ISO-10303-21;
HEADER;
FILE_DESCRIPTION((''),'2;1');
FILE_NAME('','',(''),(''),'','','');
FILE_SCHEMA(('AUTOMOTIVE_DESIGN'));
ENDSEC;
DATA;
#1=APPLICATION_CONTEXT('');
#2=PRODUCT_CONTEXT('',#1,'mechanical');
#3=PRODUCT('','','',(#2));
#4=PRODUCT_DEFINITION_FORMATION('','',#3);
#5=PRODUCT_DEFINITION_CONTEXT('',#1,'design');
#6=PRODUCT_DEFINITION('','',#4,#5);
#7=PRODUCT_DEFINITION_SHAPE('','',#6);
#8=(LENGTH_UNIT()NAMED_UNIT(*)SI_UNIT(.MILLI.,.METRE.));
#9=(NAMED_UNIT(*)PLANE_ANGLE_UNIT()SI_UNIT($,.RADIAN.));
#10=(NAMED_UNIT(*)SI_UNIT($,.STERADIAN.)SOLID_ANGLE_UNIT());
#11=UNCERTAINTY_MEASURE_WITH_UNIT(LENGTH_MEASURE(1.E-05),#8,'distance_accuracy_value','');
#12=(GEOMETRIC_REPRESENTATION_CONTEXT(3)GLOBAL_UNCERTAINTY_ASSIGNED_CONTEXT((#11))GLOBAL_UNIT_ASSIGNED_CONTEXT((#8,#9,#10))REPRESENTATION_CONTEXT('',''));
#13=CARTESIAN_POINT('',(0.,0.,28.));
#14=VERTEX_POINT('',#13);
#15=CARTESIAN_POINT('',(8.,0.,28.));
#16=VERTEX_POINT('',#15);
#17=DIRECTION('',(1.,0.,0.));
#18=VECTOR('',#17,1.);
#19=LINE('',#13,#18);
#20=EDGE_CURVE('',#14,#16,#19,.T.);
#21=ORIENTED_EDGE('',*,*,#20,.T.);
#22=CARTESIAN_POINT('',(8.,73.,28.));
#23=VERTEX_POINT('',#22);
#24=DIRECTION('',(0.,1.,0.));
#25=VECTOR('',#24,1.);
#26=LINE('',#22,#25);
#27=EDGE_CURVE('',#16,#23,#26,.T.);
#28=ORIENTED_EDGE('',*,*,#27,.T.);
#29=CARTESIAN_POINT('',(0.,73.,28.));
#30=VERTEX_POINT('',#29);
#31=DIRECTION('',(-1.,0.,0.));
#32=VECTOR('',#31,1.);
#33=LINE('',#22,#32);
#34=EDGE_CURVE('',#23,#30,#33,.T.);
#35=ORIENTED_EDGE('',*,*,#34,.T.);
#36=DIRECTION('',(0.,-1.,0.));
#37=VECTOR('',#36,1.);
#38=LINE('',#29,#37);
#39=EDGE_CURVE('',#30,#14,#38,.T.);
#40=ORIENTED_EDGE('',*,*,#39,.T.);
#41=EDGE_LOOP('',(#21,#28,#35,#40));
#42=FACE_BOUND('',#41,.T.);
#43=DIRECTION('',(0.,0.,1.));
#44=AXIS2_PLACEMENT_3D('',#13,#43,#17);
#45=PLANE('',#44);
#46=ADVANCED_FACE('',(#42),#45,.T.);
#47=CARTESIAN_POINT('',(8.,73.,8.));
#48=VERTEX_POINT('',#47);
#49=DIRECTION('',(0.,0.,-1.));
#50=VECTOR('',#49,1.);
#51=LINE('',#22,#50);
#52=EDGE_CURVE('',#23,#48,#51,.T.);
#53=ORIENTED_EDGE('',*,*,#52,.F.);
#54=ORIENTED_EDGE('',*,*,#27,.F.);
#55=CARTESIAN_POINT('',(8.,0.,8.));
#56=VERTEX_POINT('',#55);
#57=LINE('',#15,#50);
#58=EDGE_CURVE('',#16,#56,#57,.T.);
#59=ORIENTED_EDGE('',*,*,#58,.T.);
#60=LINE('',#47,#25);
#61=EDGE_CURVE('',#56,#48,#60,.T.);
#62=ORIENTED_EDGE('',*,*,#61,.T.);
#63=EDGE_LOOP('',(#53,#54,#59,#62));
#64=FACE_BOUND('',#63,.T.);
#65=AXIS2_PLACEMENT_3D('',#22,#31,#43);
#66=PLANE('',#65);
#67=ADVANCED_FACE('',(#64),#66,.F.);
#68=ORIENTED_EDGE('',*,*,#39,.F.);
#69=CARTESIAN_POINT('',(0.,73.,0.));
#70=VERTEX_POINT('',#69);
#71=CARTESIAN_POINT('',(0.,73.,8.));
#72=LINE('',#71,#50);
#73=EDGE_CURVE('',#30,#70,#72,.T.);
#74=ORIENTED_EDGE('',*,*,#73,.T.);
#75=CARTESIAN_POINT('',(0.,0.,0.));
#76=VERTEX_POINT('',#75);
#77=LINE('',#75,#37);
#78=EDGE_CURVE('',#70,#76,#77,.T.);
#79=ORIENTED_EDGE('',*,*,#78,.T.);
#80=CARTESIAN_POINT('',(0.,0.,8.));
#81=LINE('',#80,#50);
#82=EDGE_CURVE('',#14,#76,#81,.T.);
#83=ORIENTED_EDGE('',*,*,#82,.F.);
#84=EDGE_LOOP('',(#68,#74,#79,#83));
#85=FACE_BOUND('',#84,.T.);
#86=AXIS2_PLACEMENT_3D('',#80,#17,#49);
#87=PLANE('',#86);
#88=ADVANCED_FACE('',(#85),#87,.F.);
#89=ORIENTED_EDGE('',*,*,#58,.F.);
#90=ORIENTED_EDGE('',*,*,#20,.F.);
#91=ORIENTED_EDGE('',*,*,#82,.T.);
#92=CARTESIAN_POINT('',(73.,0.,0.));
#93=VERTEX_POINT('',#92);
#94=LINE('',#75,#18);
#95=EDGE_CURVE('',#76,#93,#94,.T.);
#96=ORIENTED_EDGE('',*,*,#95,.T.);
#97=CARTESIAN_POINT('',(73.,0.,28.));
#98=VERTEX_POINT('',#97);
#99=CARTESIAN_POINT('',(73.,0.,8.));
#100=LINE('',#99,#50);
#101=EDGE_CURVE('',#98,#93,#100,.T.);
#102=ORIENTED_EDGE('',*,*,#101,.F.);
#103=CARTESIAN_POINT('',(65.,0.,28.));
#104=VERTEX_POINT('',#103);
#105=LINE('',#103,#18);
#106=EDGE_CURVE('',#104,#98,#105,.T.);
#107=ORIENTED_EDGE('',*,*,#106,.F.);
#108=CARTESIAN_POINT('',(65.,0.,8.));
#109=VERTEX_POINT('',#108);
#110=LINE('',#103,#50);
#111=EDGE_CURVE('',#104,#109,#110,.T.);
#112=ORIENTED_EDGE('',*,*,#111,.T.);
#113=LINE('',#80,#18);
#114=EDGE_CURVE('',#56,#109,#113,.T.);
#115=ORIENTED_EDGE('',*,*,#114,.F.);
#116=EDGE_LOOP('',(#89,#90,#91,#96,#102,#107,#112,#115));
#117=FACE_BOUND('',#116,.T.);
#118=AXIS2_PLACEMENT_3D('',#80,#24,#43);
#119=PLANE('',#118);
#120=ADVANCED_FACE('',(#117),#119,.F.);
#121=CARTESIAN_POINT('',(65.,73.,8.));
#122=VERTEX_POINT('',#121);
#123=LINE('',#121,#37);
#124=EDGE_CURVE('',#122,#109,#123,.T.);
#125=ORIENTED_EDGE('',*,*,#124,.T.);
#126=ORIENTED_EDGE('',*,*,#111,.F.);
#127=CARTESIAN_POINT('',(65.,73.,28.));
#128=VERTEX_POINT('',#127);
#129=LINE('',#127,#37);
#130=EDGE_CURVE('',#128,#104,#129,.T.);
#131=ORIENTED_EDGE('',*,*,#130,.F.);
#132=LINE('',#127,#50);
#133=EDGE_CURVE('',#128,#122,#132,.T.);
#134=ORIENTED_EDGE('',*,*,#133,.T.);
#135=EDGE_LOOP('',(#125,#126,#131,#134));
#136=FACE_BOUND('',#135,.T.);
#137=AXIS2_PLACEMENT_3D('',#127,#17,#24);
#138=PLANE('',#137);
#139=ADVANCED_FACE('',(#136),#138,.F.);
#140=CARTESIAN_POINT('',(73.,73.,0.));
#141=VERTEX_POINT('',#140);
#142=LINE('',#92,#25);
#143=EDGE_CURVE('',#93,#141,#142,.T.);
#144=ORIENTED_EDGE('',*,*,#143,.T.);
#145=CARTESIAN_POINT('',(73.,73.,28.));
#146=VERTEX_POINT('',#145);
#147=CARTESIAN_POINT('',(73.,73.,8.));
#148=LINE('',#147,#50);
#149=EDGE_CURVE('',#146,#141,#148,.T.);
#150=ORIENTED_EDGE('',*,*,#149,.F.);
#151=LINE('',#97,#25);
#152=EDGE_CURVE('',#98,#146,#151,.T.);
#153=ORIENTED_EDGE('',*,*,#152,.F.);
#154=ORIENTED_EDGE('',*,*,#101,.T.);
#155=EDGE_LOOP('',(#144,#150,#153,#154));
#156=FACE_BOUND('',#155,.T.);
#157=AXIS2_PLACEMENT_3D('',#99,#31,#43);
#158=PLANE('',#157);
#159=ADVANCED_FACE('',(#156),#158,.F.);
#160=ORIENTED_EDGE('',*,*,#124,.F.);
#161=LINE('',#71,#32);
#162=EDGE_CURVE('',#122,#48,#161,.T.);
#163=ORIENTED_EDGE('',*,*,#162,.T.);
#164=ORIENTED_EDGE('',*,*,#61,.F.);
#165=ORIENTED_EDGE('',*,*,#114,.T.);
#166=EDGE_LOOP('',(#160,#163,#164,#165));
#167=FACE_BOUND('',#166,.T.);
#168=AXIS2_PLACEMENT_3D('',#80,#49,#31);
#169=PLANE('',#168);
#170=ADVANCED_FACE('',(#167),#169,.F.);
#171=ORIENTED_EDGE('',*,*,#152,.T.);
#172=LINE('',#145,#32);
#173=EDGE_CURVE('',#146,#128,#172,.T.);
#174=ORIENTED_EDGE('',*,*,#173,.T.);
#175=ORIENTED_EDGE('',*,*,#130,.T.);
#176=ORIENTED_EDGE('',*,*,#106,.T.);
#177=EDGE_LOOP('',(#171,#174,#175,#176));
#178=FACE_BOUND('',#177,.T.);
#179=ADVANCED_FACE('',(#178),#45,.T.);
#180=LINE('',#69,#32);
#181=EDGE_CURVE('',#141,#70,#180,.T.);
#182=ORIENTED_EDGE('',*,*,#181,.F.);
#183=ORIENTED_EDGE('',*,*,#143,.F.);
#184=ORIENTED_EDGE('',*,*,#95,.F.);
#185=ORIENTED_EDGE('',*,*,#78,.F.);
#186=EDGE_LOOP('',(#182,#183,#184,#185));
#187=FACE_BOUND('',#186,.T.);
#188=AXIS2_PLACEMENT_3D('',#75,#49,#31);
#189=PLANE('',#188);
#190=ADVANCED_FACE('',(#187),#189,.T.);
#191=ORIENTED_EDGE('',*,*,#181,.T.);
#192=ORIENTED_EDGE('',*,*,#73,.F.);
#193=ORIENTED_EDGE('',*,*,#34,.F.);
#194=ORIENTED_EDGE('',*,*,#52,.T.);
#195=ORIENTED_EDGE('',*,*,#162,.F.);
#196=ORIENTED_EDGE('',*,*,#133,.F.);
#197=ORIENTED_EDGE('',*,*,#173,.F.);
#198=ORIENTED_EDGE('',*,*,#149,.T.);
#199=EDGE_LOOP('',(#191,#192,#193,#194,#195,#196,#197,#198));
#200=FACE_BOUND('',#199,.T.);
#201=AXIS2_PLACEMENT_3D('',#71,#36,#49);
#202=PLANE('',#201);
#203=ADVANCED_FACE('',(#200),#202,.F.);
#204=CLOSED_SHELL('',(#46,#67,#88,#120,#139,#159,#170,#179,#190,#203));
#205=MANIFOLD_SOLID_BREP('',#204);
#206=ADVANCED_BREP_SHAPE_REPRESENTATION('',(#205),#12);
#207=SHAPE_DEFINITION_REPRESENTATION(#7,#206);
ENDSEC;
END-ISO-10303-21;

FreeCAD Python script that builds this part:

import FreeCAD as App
import Part
import Sketcher

V = App.Vector


def add_polygon(sketch, points):
    """Adds a closed chain of lines whose ends are joined by coincident constraints."""
    first, n = sketch.GeometryCount, len(points)
    for a, b in zip(points, points[1:] + points[:1]):
        sketch.addGeometry(Part.LineSegment(App.Vector(*a, 0), App.Vector(*b, 0)), False)
    for i in range(n):
        sketch.addConstraint(Sketcher.Constraint("Coincident", first + i, 2, first + (i + 1) % n, 1))

doc = App.newDocument("Part")
body = doc.addObject("PartDesign::Body", "Body")

# Sketch on XY plane
sketch1 = doc.addObject("Sketcher::SketchObject", "Sketch")
body.addObject(sketch1)
sketch1.AttachmentSupport = (doc.XY_Plane, [""])
sketch1.MapMode = "FlatFace"
add_polygon(sketch1, [(0, 73), (0, 0), (73, 0), (73, 73)])  # lines 0-3
sketch1.addConstraint([
    Sketcher.Constraint("Vertical", 0),
    Sketcher.Constraint("Horizontal", 1),
    Sketcher.Constraint("Vertical", 2),
    Sketcher.Constraint("Horizontal", 3),
    Sketcher.Constraint("Coincident", 0, 2, -1, 1),
    Sketcher.Constraint("Equal", 3, 0),
    Sketcher.Constraint("DistanceX", 1, 1, 1, 2, 73.0),
])
pad1 = doc.addObject("PartDesign::Pad", "Pad")
body.addObject(pad1)
pad1.Profile = sketch1
pad1.Length = 8

# Sketch on XY plane
sketch2 = doc.addObject("Sketcher::SketchObject", "Sketch001")
body.addObject(sketch2)
sketch2.AttachmentSupport = (doc.XY_Plane, [""])
sketch2.MapMode = "FlatFace"
sketch2.AttachmentOffset = App.Placement(V(0, 0, 8), App.Rotation())
add_polygon(sketch2, [(0, 73), (0, 0), (8, 0), (8, 73)])  # lines 0-3
add_polygon(sketch2, [(65, 73), (65, 0), (73, 0), (73, 73)])  # lines 4-7
sketch2.addConstraint([
    Sketcher.Constraint("Vertical", 0),
    Sketcher.Constraint("Horizontal", 1),
    Sketcher.Constraint("Vertical", 2),
    Sketcher.Constraint("Horizontal", 3),
    Sketcher.Constraint("Vertical", 4),
    Sketcher.Constraint("Horizontal", 5),
    Sketcher.Constraint("Vertical", 6),
    Sketcher.Constraint("Horizontal", 7),
    Sketcher.Constraint("Coincident", 0, 2, -1, 1),
    Sketcher.Constraint("PointOnObject", 4, 2, -1),
    Sketcher.Constraint("Horizontal", 3, 2, 6, 2),
    Sketcher.Constraint("Equal", 3, 5),
    Sketcher.Constraint("DistanceX", 1, 1, 1, 2, 8.0),
    Sketcher.Constraint("DistanceY", 0, 2, 0, 1, 73.0),
    Sketcher.Constraint("DistanceX", -1, 1, 4, 2, 65.0),
])
pad2 = doc.addObject("PartDesign::Pad", "Pad001")
body.addObject(pad2)
pad2.Profile = sketch2
pad2.Length = 20

doc.recompute()
